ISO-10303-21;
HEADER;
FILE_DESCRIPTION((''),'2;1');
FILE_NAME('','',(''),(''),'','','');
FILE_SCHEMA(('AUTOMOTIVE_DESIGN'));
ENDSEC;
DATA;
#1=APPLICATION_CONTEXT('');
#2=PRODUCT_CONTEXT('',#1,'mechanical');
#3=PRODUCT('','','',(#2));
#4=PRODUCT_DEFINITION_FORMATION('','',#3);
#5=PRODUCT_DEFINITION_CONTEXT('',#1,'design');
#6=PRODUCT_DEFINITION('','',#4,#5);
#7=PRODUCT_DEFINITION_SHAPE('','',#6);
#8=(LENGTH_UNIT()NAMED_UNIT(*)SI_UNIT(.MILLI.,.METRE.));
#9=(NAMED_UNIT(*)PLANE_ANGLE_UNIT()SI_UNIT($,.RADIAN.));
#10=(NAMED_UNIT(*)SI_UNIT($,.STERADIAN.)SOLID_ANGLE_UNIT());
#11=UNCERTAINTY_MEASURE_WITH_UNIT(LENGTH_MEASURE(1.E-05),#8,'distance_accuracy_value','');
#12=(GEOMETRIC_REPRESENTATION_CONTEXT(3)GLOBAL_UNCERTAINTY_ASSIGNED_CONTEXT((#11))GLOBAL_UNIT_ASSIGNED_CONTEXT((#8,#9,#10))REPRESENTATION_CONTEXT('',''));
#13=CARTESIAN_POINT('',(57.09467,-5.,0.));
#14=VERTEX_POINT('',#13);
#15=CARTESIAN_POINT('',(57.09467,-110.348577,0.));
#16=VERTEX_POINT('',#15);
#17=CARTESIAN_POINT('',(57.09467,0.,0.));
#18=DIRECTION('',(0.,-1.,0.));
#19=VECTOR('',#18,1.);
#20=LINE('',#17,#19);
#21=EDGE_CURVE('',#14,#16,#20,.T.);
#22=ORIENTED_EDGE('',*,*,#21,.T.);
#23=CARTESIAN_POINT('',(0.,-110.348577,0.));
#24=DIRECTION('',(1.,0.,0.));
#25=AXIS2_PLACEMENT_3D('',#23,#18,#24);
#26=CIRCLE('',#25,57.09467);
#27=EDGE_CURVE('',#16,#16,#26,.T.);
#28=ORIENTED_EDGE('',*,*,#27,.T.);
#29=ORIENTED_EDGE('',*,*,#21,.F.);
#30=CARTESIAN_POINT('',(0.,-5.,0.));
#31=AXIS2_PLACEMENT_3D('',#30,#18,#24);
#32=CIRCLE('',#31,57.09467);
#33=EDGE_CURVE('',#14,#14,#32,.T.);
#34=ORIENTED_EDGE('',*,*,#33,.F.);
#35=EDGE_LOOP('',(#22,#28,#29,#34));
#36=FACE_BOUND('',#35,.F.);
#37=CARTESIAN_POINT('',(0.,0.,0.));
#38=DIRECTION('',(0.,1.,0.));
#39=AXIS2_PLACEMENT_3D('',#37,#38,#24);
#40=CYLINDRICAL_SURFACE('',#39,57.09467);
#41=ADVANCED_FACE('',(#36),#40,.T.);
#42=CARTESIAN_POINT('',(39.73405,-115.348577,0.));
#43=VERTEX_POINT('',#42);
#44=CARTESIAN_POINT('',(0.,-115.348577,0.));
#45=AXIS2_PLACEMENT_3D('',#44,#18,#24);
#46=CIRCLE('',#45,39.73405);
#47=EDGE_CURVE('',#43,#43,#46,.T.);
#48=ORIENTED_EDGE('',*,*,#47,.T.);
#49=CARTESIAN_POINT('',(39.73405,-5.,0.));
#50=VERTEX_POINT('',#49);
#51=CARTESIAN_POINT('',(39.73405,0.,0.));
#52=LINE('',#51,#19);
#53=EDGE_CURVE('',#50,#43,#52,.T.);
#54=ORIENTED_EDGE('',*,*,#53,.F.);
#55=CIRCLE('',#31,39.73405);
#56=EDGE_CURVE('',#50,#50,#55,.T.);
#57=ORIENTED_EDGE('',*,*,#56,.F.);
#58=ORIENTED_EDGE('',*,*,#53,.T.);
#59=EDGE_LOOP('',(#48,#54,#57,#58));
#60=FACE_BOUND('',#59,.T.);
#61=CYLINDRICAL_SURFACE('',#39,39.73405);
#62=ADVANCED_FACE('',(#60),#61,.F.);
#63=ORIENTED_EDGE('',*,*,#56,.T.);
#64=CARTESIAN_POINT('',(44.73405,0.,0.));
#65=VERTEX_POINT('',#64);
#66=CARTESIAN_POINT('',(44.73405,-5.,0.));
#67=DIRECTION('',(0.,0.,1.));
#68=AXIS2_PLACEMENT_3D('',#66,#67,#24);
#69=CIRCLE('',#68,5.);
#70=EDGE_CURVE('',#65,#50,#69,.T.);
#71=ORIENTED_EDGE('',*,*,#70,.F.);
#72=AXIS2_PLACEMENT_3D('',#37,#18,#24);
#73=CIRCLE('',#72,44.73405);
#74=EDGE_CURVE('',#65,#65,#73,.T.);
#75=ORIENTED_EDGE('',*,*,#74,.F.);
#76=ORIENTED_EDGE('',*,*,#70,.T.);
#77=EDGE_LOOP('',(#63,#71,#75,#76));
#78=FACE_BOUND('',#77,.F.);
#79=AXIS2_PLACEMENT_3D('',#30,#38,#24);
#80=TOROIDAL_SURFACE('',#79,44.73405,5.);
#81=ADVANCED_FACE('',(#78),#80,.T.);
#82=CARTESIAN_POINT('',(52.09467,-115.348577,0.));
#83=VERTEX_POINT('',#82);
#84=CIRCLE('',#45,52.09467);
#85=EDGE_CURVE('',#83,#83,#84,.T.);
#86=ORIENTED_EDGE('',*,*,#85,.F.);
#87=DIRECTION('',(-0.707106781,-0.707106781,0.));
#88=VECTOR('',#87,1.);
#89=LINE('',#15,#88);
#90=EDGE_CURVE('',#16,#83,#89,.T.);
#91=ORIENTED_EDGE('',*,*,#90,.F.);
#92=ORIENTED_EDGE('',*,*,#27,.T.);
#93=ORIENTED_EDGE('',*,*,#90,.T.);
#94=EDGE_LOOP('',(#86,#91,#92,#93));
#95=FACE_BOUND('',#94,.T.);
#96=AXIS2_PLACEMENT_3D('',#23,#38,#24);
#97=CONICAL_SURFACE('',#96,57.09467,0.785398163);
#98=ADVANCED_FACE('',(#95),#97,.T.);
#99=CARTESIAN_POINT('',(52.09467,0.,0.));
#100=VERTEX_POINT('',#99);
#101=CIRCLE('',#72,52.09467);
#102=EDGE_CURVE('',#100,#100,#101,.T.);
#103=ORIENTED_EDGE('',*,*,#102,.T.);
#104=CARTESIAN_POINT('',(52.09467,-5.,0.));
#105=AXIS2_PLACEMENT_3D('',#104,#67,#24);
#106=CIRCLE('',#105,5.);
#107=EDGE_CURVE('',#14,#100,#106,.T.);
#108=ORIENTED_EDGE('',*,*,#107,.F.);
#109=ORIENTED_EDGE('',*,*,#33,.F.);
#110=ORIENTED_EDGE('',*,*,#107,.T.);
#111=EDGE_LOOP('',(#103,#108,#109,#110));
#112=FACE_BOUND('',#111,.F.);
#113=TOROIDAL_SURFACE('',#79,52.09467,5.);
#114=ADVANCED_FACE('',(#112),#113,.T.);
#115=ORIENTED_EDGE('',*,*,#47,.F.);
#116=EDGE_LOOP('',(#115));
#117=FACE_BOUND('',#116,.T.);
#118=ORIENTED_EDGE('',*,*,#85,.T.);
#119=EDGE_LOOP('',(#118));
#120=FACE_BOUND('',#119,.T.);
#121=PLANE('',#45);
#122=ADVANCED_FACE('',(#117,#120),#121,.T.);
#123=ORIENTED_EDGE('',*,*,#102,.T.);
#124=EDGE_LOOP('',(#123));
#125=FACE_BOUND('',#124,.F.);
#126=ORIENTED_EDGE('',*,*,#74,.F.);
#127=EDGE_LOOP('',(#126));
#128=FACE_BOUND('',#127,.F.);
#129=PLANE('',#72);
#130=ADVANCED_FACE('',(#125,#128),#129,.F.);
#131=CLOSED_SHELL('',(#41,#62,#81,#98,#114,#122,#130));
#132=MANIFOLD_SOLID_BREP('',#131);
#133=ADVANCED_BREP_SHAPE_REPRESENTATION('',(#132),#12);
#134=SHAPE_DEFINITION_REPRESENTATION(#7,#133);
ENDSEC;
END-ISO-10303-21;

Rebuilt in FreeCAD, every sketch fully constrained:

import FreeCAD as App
import Part
import Sketcher

V = App.Vector
Q = App.Units.Quantity


def edges_at(feature, points):
    """Names of the edges that pass closest to the given points."""
    edges = feature.Shape.Edges
    near = lambda p: min(range(len(edges)), key=lambda i: edges[i].distToShape(Part.Vertex(*p))[0])
    return sorted({f"Edge{near(p) + 1}" for p in points})

doc = App.newDocument("Part")
params = doc.addObject("Spreadsheet::Sheet", "Params")
for row, (alias, value) in enumerate([
    ("pad1_length", "115.348577 mm"),
    ("chamfer_size", "5 mm"),
    ("fillet_radius", "5 mm"),
    ("fillet2_radius", "5 mm"),
], start=1):
    params.set(f"A{row}", alias)
    params.set(f"B{row}", "=" + value)
    params.setAlias(f"B{row}", alias)

body = doc.addObject("PartDesign::Body", "Body")

# Sketch on XZ plane
sketch1 = doc.addObject("Sketcher::SketchObject", "Sketch")
body.addObject(sketch1)
sketch1.AttachmentSupport = (doc.XZ_Plane, [""])
sketch1.MapMode = "FlatFace"
sketch1.addGeometry([
    Part.Circle(V(0, 0, 0), V(0, 0, 1), 57.09467),
    Part.Circle(V(0, 0, 0), V(0, 0, 1), 39.73405),
], False)
sketch1.addConstraint([
    Sketcher.Constraint("Coincident", 0, 3, -1, 1),
    Sketcher.Constraint("Coincident", 1, 3, -1, 1),
    Sketcher.Constraint("Diameter", 1, Q("79.4681 mm")),
    Sketcher.Constraint("Diameter", 0, Q("114.18934 mm")),
])
pad1 = doc.addObject("PartDesign::Pad", "Pad")
body.addObject(pad1)
pad1.Profile = sketch1
pad1.setExpression("Length", "Params.pad1_length")
doc.recompute()

chamfer = doc.addObject("PartDesign::Chamfer", "Chamfer")
body.addObject(chamfer)
chamfer.Base = (pad1, edges_at(pad1, [(-57.095, -115.349, 0)]))
chamfer.setExpression("Size", "Params.chamfer_size")
doc.recompute()

fillet = doc.addObject("PartDesign::Fillet", "Fillet")
body.addObject(fillet)
fillet.Base = (chamfer, edges_at(chamfer, [(-57.095, 0, 0)]))
fillet.setExpression("Radius", "Params.fillet_radius")
doc.recompute()

fillet2 = doc.addObject("PartDesign::Fillet", "Fillet001")
body.addObject(fillet2)
fillet2.Base = (fillet, edges_at(fillet, [(-39.734, 0, 0)]))
fillet2.setExpression("Radius", "Params.fillet2_radius")

doc.recompute()
